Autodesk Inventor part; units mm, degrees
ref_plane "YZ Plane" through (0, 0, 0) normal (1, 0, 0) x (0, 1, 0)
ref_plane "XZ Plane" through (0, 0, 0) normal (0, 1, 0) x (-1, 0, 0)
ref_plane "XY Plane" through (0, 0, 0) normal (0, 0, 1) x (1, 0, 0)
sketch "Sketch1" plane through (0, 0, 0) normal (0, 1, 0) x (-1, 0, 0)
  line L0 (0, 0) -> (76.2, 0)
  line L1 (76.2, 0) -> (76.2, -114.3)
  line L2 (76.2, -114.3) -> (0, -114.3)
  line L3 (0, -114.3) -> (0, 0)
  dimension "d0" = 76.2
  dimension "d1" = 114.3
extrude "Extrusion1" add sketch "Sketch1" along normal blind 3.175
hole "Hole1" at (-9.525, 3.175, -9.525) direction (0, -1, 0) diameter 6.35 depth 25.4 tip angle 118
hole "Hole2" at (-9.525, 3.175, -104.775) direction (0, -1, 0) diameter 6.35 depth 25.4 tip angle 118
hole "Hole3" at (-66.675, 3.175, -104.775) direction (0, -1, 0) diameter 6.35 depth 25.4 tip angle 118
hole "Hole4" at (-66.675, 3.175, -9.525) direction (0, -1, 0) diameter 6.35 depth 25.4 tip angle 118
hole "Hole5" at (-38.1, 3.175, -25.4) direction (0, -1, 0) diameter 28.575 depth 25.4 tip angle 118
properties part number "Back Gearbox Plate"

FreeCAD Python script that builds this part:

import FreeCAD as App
import Part
import Sketcher
from FreeCAD import Vector
Q = App.Units.Quantity

doc = App.newDocument("Part")
params = doc.addObject("Spreadsheet::Sheet", "Params")
for row, (alias, value) in enumerate([
    ("sketch1_width", "3 in"),
    ("sketch1_height", "4.5 in"),
    ("pad1_length", "0.125 in"),
    ("sketch2_diameter", "0.25 in"),
    ("hole_diameter", "0.25 in"),
    ("hole_depth", "1 in"),
    ("sketch3_diameter", "0.25 in"),
    ("hole2_diameter", "0.25 in"),
    ("hole2_depth", "1 in"),
    ("sketch4_diameter", "0.25 in"),
    ("hole3_diameter", "0.25 in"),
    ("hole3_depth", "1 in"),
    ("sketch5_diameter", "0.25 in"),
    ("hole4_diameter", "0.25 in"),
    ("hole4_depth", "1 in"),
    ("sketch6_diameter", "1.125 in"),
    ("hole5_diameter", "1.125 in"),
    ("hole5_depth", "1 in"),
], start=1):
    params.set(f"A{row}", alias)
    params.set(f"B{row}", "=" + value)
    params.setAlias(f"B{row}", alias)

body = doc.addObject("PartDesign::Body", "Body")

sketch1 = doc.addObject("Sketcher::SketchObject", "Sketch")
body.addObject(sketch1)
sketch1.AttachmentSupport = (doc.XZ_Plane, [""])
sketch1.MapMode = "FlatFace"
sketch1.addGeometry(Part.LineSegment(Vector(-76, 0, 0), Vector(0, 0, 0)), False)
sketch1.addGeometry(Part.LineSegment(Vector(0, 0, 0), Vector(0, -114, 0)), False)
sketch1.addGeometry(Part.LineSegment(Vector(0, -114, 0), Vector(-76, -114, 0)), False)
sketch1.addGeometry(Part.LineSegment(Vector(-76, -114, 0), Vector(-76, 0, 0)), False)
sketch1.addConstraint(Sketcher.Constraint("Coincident", 0, 2, 1, 1))
sketch1.addConstraint(Sketcher.Constraint("Coincident", 1, 2, 2, 1))
sketch1.addConstraint(Sketcher.Constraint("Coincident", 2, 2, 3, 1))
sketch1.addConstraint(Sketcher.Constraint("Coincident", 3, 2, 0, 1))
sketch1.addConstraint(Sketcher.Constraint("Horizontal", 0))
sketch1.addConstraint(Sketcher.Constraint("Vertical", 1))
sketch1.addConstraint(Sketcher.Constraint("Horizontal", 2))
sketch1.addConstraint(Sketcher.Constraint("Vertical", 3))
sketch1.addConstraint(Sketcher.Constraint("Coincident", 0, 2, -1, 1))
sketch1.addConstraint(Sketcher.Constraint("DistanceX", 0, 1, 0, 2, Q("3 in")))
sketch1.addConstraint(Sketcher.Constraint("DistanceY", 1, 2, 1, 1, Q("4.5 in")))
sketch1.setExpression("Constraints[9]", "Params.sketch1_width")
sketch1.setExpression("Constraints[10]", "Params.sketch1_height")
pad1 = doc.addObject("PartDesign::Pad", "Pad")
body.addObject(pad1)
pad1.Profile = sketch1
pad1.setExpression("Length", "Params.pad1_length")
pad1.Reversed = True

sketch2 = doc.addObject("Sketcher::SketchObject", "Sketch001")
body.addObject(sketch2)
sketch2.AttachmentSupport = (doc.XZ_Plane, [""])
sketch2.MapMode = "FlatFace"
sketch2.AttachmentOffset = App.Placement(Vector(0, 0, -0.125 * 25.4), App.Rotation())
sketch2.addGeometry(Part.Circle(Vector(-9.5, -9.5, 0), Vector(0, 0, 1), 3.2), False)
sketch2.addConstraint(Sketcher.Constraint("Diameter", 0, Q("0.25 in")))
sketch2.addConstraint(Sketcher.Constraint("DistanceX", 0, 3, -1, 1, Q("0.375 in")))
sketch2.addConstraint(Sketcher.Constraint("DistanceY", 0, 3, -1, 1, Q("0.375 in")))
sketch2.setExpression("Constraints[0]", "Params.sketch2_diameter")
doc.recompute()
hole = doc.addObject("PartDesign::Hole", "Hole")
body.addObject(hole)
hole.Profile = sketch2
hole.ThreadType = "None"
hole.setExpression("Diameter", "Params.hole_diameter")
hole.DepthType = "Dimension"
hole.setExpression("Depth", "Params.hole_depth")
hole.DrillPoint = "Angled"
hole.DrillPointAngle = 118
hole.Reversed = True

sketch3 = doc.addObject("Sketcher::SketchObject", "Sketch002")
body.addObject(sketch3)
sketch3.AttachmentSupport = (doc.XZ_Plane, [""])
sketch3.MapMode = "FlatFace"
sketch3.AttachmentOffset = App.Placement(Vector(0, 0, -0.125 * 25.4), App.Rotation())
sketch3.addGeometry(Part.Circle(Vector(-9.5, -104.8, 0), Vector(0, 0, 1), 3.2), False)
sketch3.addConstraint(Sketcher.Constraint("Diameter", 0, Q("0.25 in")))
sketch3.addConstraint(Sketcher.Constraint("DistanceX", 0, 3, -1, 1, Q("0.375 in")))
sketch3.addConstraint(Sketcher.Constraint("DistanceY", 0, 3, -1, 1, Q("4.125 in")))
sketch3.setExpression("Constraints[0]", "Params.sketch3_diameter")
doc.recompute()
hole2 = doc.addObject("PartDesign::Hole", "Hole001")
body.addObject(hole2)
hole2.Profile = sketch3
hole2.ThreadType = "None"
hole2.setExpression("Diameter", "Params.hole2_diameter")
hole2.DepthType = "Dimension"
hole2.setExpression("Depth", "Params.hole2_depth")
hole2.DrillPoint = "Angled"
hole2.DrillPointAngle = 118
hole2.Reversed = True

sketch4 = doc.addObject("Sketcher::SketchObject", "Sketch003")
body.addObject(sketch4)
sketch4.AttachmentSupport = (doc.XZ_Plane, [""])
sketch4.MapMode = "FlatFace"
sketch4.AttachmentOffset = App.Placement(Vector(0, 0, -0.125 * 25.4), App.Rotation())
sketch4.addGeometry(Part.Circle(Vector(-66.7, -104.8, 0), Vector(0, 0, 1), 3.2), False)
sketch4.addConstraint(Sketcher.Constraint("Diameter", 0, Q("0.25 in")))
sketch4.addConstraint(Sketcher.Constraint("DistanceX", 0, 3, -1, 1, Q("2.625 in")))
sketch4.addConstraint(Sketcher.Constraint("DistanceY", 0, 3, -1, 1, Q("4.125 in")))
sketch4.setExpression("Constraints[0]", "Params.sketch4_diameter")
doc.recompute()
hole3 = doc.addObject("PartDesign::Hole", "Hole002")
body.addObject(hole3)
hole3.Profile = sketch4
hole3.ThreadType = "None"
hole3.setExpression("Diameter", "Params.hole3_diameter")
hole3.DepthType = "Dimension"
hole3.setExpression("Depth", "Params.hole3_depth")
hole3.DrillPoint = "Angled"
hole3.DrillPointAngle = 118
hole3.Reversed = True

sketch5 = doc.addObject("Sketcher::SketchObject", "Sketch004")
body.addObject(sketch5)
sketch5.AttachmentSupport = (doc.XZ_Plane, [""])
sketch5.MapMode = "FlatFace"
sketch5.AttachmentOffset = App.Placement(Vector(0, 0, -0.125 * 25.4), App.Rotation())
sketch5.addGeometry(Part.Circle(Vector(-66.7, -9.5, 0), Vector(0, 0, 1), 3.2), False)
sketch5.addConstraint(Sketcher.Constraint("Diameter", 0, Q("0.25 in")))
sketch5.addConstraint(Sketcher.Constraint("DistanceX", 0, 3, -1, 1, Q("2.625 in")))
sketch5.addConstraint(Sketcher.Constraint("DistanceY", 0, 3, -1, 1, Q("0.375 in")))
sketch5.setExpression("Constraints[0]", "Params.sketch5_diameter")
doc.recompute()
hole4 = doc.addObject("PartDesign::Hole", "Hole003")
body.addObject(hole4)
hole4.Profile = sketch5
hole4.ThreadType = "None"
hole4.setExpression("Diameter", "Params.hole4_diameter")
hole4.DepthType = "Dimension"
hole4.setExpression("Depth", "Params.hole4_depth")
hole4.DrillPoint = "Angled"
hole4.DrillPointAngle = 118
hole4.Reversed = True

sketch6 = doc.addObject("Sketcher::SketchObject", "Sketch005")
body.addObject(sketch6)
sketch6.AttachmentSupport = (doc.XZ_Plane, [""])
sketch6.MapMode = "FlatFace"
sketch6.AttachmentOffset = App.Placement(Vector(0, 0, -0.125 * 25.4), App.Rotation())
sketch6.addGeometry(Part.Circle(Vector(-38, -25, 0), Vector(0, 0, 1), 14), False)
sketch6.addConstraint(Sketcher.Constraint("Diameter", 0, Q("1.125 in")))
sketch6.addConstraint(Sketcher.Constraint("DistanceY", 0, 3, -1, 1, Q("1 in")))
sketch6.addConstraint(Sketcher.Constraint("DistanceX", 0, 3, -1, 1, Q("1.5 in")))
sketch6.setExpression("Constraints[0]", "Params.sketch6_diameter")
doc.recompute()
hole5 = doc.addObject("PartDesign::Hole", "Hole004")
body.addObject(hole5)
hole5.Profile = sketch6
hole5.ThreadType = "None"
hole5.setExpression("Diameter", "Params.hole5_diameter")
hole5.DepthType = "Dimension"
hole5.setExpression("Depth", "Params.hole5_depth")
hole5.DrillPoint = "Angled"
hole5.DrillPointAngle = 118
hole5.Reversed = True

doc.recompute()
